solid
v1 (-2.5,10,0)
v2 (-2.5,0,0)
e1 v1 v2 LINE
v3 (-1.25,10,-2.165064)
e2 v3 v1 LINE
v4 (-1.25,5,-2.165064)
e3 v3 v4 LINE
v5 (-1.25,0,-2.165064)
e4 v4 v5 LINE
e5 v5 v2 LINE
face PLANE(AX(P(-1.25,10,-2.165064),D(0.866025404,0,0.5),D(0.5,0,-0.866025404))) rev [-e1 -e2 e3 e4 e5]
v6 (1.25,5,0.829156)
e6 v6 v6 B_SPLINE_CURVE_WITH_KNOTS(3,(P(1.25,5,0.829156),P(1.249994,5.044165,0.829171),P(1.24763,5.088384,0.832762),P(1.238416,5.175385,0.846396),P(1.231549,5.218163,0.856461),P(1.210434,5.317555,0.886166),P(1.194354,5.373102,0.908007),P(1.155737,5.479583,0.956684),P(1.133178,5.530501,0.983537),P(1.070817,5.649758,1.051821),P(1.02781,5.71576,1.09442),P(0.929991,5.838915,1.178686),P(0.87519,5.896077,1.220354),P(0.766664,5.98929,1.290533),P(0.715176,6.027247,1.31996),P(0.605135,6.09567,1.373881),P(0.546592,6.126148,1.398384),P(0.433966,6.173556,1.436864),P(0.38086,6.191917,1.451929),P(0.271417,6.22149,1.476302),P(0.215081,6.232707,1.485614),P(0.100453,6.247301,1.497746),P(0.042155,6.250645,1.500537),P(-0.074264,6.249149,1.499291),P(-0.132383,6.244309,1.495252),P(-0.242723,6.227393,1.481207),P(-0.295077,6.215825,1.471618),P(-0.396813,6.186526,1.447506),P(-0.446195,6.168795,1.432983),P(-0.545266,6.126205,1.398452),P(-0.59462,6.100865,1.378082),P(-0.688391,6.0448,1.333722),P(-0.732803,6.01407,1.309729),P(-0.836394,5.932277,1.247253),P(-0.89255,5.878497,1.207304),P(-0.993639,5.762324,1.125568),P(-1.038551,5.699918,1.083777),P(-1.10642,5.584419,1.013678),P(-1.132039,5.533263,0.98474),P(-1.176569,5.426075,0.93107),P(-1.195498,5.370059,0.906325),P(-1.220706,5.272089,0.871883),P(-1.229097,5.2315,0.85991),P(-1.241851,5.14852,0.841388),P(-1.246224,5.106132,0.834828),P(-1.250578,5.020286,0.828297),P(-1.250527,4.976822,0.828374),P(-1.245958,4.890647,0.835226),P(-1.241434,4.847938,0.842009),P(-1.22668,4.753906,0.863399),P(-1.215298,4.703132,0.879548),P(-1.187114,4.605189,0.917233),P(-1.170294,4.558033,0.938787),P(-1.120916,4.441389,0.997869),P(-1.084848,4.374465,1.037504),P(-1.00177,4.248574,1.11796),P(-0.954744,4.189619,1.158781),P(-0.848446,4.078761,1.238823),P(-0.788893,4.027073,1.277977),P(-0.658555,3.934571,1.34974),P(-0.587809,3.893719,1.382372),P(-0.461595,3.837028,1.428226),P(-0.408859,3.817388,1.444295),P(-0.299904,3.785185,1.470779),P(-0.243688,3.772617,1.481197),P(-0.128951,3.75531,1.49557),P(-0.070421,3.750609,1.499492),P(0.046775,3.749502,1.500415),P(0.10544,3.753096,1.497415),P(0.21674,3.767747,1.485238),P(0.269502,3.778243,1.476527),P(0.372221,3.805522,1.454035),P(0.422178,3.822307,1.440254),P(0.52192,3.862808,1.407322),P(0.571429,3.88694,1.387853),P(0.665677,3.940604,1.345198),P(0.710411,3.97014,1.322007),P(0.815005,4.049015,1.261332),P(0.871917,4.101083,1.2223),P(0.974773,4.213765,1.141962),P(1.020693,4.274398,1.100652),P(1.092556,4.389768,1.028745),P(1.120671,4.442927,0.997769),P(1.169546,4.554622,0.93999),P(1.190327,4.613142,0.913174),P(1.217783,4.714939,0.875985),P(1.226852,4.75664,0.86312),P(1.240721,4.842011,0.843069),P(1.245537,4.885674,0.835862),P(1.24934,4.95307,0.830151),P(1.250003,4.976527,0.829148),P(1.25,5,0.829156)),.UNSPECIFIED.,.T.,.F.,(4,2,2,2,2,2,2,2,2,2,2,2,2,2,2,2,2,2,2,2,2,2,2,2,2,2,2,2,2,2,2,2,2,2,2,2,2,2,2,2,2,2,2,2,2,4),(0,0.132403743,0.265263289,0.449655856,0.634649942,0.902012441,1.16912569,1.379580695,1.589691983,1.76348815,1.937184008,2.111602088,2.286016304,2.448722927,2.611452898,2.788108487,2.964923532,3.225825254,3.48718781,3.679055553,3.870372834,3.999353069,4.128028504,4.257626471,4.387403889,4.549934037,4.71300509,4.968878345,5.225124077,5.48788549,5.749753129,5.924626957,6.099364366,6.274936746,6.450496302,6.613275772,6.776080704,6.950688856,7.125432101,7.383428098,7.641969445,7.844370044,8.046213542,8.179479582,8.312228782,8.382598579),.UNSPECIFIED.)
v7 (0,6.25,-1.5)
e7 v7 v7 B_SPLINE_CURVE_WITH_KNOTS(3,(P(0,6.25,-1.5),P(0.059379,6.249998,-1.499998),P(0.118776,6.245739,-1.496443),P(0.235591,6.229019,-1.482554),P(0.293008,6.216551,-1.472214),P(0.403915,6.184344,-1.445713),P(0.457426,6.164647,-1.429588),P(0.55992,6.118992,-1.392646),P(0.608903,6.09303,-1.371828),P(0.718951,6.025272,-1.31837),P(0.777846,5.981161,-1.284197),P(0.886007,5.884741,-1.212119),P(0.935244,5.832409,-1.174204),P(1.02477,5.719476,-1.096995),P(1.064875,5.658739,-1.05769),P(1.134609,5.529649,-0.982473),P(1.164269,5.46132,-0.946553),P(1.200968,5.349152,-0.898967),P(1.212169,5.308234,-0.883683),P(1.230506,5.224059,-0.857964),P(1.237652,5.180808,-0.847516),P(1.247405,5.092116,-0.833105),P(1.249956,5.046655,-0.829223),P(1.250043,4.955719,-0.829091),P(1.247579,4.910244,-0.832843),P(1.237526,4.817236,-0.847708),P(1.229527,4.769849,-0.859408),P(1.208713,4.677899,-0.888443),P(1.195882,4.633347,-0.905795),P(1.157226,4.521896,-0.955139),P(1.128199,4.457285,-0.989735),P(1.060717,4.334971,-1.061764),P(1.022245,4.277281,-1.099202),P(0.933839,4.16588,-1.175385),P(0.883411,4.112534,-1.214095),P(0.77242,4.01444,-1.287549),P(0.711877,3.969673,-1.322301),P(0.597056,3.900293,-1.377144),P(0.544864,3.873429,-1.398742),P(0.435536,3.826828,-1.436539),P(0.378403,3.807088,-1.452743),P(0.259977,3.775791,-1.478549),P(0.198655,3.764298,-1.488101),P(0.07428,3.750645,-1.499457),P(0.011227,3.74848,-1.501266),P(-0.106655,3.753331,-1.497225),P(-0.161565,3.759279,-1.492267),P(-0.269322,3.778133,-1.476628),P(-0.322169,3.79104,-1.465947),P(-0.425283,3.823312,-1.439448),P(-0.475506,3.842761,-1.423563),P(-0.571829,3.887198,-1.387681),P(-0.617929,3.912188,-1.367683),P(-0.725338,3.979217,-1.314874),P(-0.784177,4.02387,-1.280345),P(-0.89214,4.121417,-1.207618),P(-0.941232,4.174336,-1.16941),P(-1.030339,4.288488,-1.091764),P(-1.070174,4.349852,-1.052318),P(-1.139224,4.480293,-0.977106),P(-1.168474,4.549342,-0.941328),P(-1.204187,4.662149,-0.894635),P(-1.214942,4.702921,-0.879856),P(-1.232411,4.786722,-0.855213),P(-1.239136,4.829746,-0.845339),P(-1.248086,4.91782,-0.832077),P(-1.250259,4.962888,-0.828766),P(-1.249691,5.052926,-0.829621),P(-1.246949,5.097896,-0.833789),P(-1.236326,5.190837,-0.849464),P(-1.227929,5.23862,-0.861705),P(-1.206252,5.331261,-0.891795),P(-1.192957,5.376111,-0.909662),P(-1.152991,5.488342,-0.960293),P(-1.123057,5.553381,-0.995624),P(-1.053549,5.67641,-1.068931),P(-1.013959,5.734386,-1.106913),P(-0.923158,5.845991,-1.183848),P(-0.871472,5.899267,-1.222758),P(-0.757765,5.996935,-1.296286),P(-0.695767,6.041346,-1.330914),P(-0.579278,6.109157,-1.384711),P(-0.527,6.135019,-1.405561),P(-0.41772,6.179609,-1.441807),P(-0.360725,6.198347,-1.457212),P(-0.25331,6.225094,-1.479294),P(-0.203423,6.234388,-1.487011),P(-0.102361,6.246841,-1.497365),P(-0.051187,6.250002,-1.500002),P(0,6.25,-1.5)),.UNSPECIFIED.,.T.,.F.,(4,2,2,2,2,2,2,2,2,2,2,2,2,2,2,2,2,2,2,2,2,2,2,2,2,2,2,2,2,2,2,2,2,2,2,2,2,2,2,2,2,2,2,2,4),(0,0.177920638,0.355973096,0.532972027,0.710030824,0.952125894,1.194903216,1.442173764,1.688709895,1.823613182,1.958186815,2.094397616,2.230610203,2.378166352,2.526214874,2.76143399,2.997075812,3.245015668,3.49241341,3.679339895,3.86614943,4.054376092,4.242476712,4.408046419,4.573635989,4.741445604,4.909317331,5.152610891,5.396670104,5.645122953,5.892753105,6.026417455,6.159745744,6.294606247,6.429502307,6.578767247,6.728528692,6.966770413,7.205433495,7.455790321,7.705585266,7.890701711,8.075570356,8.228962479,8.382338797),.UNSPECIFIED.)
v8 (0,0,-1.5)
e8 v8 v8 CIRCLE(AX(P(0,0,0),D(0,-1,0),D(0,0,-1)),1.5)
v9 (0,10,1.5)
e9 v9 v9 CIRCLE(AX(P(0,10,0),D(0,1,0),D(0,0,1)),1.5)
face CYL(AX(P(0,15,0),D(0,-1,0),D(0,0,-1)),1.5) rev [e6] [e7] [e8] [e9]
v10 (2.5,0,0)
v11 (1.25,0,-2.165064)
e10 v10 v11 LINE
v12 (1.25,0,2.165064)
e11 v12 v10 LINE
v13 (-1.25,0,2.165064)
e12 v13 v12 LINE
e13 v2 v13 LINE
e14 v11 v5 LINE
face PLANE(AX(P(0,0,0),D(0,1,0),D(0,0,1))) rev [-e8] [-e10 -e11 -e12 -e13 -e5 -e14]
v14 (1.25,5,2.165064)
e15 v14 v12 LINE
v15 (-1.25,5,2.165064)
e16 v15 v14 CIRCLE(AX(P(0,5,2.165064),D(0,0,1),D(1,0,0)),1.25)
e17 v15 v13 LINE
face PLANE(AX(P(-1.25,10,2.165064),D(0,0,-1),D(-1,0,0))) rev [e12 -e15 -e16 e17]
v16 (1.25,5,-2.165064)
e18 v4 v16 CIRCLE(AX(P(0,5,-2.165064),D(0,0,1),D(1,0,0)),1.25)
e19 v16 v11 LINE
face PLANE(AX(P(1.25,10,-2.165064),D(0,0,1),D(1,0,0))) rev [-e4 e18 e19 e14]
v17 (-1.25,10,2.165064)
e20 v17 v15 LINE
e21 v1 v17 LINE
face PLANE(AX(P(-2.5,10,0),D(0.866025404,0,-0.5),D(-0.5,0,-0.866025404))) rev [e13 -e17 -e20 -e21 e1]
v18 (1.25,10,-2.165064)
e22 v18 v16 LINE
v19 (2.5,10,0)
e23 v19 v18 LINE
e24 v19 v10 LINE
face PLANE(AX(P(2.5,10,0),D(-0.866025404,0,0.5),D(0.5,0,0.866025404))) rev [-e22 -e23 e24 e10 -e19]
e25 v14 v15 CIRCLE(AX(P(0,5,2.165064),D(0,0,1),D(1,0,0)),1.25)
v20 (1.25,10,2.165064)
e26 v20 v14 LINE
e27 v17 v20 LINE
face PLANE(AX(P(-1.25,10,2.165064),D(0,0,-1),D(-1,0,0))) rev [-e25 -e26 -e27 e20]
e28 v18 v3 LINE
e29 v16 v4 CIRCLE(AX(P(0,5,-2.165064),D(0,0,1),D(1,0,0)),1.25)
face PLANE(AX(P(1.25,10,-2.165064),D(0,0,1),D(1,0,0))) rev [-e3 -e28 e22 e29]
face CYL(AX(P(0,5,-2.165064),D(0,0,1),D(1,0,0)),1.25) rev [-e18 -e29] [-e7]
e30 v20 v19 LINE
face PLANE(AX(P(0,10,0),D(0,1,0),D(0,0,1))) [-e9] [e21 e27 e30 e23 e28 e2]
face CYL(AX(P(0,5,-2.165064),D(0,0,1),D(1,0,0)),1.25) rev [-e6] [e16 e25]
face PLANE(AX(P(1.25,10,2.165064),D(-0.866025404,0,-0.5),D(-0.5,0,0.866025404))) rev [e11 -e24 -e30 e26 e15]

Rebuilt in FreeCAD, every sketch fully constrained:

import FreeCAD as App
import Part
import Sketcher

V = App.Vector
Q = App.Units.Quantity

doc = App.newDocument("Part")
body = doc.addObject("PartDesign::Body", "Body")

# Sketch on XZ plane
sketch1 = body.newObject("Sketcher::SketchObject", "Sketch")
sketch1.AttachmentSupport = (doc.getObject("XZ_Plane"), [""])
sketch1.MapMode = "FlatFace"
sketch1.addGeometry(Part.LineSegment(V(1.2, 2.2, 0), V(2.5, 0, 0)), False)
sketch1.addGeometry(Part.LineSegment(V(2.5, 0, 0), V(1.2, -2.2, 0)), False)
sketch1.addGeometry(Part.LineSegment(V(1.2, -2.2, 0), V(-1.2, -2.2, 0)), False)
sketch1.addGeometry(Part.LineSegment(V(-1.2, -2.2, 0), V(-2.5, 0, 0)), False)
sketch1.addGeometry(Part.LineSegment(V(-2.5, 0, 0), V(-1.2, 2.2, 0)), False)
sketch1.addGeometry(Part.LineSegment(V(-1.2, 2.2, 0), V(1.2, 2.2, 0)), False)
sketch1.addConstraint(Sketcher.Constraint("Coincident", 0, 2, 1, 1))
sketch1.addConstraint(Sketcher.Constraint("Coincident", 1, 2, 2, 1))
sketch1.addConstraint(Sketcher.Constraint("Coincident", 2, 2, 3, 1))
sketch1.addConstraint(Sketcher.Constraint("Coincident", 3, 2, 4, 1))
sketch1.addConstraint(Sketcher.Constraint("Coincident", 4, 2, 5, 1))
sketch1.addConstraint(Sketcher.Constraint("Coincident", 5, 2, 0, 1))
sketch1.addConstraint(Sketcher.Constraint("Horizontal", 2))
sketch1.addConstraint(Sketcher.Constraint("Horizontal", 5))
sketch1.addConstraint(Sketcher.Constraint("Symmetric", 0, 2, 3, 2, -1, 1))
sketch1.addConstraint(Sketcher.Constraint("Symmetric", 1, 2, 4, 2, -1, 1))
sketch1.addConstraint(Sketcher.Constraint("PointOnObject", 0, 2, -1))
sketch1.addConstraint(Sketcher.Constraint("Parallel", 0, 3))
sketch1.addConstraint(Sketcher.Constraint("Vertical", 2, 2, 4, 2))
sketch1.addConstraint(Sketcher.Constraint("Angle", 0, Q("-60 deg")))
sketch1.addConstraint(Sketcher.Constraint("DistanceX", 2, 2, 2, 1, 2.5))
sketch1.addConstraint(Sketcher.Constraint("DistanceX", 3, 2, 0, 2, 5.0))
pad1 = body.newObject("PartDesign::Pad", "Pad")
pad1.Profile = sketch1
pad1.Length = 10
pad1.Reversed = True

# Sketch on XZ plane
sketch2 = body.newObject("Sketcher::SketchObject", "Sketch001")
sketch2.AttachmentSupport = (doc.getObject("XZ_Plane"), [""])
sketch2.MapMode = "FlatFace"
sketch2.AttachmentOffset = App.Placement(V(0, 0, -10), App.Rotation())
sketch2.addGeometry(Part.Circle(V(0, 0, 0), V(0, 0, 1), 1.5), False)
sketch2.addConstraint(Sketcher.Constraint("Coincident", 0, 3, -1, 1))
sketch2.addConstraint(Sketcher.Constraint("Diameter", 0, 3.0))
pad2 = body.newObject("PartDesign::Pad", "Pad001")
pad2.Profile = sketch2
pad2.Length = 5
pad2.Reversed = True

# Sketch on XZ plane
sketch3 = body.newObject("Sketcher::SketchObject", "Sketch002")
sketch3.AttachmentSupport = (doc.getObject("XZ_Plane"), [""])
sketch3.MapMode = "FlatFace"
sketch3.addGeometry(Part.Circle(V(0, 0, 0), V(0, 0, 1), 1.5), False)
sketch3.addConstraint(Sketcher.Constraint("Coincident", 0, 3, -1, 1))
sketch3.addConstraint(Sketcher.Constraint("Diameter", 0, 3.0))
pocket1 = body.newObject("PartDesign::Pocket", "Pocket")
pocket1.Profile = sketch3
pocket1.Type = "ThroughAll"

# Sketch on XY plane
sketch4 = body.newObject("Sketcher::SketchObject", "Sketch003")
sketch4.AttachmentSupport = (doc.getObject("XY_Plane"), [""])
sketch4.MapMode = "FlatFace"
sketch4.addGeometry(Part.Circle(V(0, 5, 0), V(0, 0, 1), 1.2), False)
sketch4.addConstraint(Sketcher.Constraint("PointOnObject", 0, 3, -2))
sketch4.addConstraint(Sketcher.Constraint("Diameter", 0, 2.5))
sketch4.addConstraint(Sketcher.Constraint("DistanceY", -1, 1, 0, 3, 5.0))
pocket2 = body.newObject("PartDesign::Pocket", "Pocket001")
pocket2.Profile = sketch4
pocket2.Type = "ThroughAll"
pocket2.Midplane = True

doc.recompute()
